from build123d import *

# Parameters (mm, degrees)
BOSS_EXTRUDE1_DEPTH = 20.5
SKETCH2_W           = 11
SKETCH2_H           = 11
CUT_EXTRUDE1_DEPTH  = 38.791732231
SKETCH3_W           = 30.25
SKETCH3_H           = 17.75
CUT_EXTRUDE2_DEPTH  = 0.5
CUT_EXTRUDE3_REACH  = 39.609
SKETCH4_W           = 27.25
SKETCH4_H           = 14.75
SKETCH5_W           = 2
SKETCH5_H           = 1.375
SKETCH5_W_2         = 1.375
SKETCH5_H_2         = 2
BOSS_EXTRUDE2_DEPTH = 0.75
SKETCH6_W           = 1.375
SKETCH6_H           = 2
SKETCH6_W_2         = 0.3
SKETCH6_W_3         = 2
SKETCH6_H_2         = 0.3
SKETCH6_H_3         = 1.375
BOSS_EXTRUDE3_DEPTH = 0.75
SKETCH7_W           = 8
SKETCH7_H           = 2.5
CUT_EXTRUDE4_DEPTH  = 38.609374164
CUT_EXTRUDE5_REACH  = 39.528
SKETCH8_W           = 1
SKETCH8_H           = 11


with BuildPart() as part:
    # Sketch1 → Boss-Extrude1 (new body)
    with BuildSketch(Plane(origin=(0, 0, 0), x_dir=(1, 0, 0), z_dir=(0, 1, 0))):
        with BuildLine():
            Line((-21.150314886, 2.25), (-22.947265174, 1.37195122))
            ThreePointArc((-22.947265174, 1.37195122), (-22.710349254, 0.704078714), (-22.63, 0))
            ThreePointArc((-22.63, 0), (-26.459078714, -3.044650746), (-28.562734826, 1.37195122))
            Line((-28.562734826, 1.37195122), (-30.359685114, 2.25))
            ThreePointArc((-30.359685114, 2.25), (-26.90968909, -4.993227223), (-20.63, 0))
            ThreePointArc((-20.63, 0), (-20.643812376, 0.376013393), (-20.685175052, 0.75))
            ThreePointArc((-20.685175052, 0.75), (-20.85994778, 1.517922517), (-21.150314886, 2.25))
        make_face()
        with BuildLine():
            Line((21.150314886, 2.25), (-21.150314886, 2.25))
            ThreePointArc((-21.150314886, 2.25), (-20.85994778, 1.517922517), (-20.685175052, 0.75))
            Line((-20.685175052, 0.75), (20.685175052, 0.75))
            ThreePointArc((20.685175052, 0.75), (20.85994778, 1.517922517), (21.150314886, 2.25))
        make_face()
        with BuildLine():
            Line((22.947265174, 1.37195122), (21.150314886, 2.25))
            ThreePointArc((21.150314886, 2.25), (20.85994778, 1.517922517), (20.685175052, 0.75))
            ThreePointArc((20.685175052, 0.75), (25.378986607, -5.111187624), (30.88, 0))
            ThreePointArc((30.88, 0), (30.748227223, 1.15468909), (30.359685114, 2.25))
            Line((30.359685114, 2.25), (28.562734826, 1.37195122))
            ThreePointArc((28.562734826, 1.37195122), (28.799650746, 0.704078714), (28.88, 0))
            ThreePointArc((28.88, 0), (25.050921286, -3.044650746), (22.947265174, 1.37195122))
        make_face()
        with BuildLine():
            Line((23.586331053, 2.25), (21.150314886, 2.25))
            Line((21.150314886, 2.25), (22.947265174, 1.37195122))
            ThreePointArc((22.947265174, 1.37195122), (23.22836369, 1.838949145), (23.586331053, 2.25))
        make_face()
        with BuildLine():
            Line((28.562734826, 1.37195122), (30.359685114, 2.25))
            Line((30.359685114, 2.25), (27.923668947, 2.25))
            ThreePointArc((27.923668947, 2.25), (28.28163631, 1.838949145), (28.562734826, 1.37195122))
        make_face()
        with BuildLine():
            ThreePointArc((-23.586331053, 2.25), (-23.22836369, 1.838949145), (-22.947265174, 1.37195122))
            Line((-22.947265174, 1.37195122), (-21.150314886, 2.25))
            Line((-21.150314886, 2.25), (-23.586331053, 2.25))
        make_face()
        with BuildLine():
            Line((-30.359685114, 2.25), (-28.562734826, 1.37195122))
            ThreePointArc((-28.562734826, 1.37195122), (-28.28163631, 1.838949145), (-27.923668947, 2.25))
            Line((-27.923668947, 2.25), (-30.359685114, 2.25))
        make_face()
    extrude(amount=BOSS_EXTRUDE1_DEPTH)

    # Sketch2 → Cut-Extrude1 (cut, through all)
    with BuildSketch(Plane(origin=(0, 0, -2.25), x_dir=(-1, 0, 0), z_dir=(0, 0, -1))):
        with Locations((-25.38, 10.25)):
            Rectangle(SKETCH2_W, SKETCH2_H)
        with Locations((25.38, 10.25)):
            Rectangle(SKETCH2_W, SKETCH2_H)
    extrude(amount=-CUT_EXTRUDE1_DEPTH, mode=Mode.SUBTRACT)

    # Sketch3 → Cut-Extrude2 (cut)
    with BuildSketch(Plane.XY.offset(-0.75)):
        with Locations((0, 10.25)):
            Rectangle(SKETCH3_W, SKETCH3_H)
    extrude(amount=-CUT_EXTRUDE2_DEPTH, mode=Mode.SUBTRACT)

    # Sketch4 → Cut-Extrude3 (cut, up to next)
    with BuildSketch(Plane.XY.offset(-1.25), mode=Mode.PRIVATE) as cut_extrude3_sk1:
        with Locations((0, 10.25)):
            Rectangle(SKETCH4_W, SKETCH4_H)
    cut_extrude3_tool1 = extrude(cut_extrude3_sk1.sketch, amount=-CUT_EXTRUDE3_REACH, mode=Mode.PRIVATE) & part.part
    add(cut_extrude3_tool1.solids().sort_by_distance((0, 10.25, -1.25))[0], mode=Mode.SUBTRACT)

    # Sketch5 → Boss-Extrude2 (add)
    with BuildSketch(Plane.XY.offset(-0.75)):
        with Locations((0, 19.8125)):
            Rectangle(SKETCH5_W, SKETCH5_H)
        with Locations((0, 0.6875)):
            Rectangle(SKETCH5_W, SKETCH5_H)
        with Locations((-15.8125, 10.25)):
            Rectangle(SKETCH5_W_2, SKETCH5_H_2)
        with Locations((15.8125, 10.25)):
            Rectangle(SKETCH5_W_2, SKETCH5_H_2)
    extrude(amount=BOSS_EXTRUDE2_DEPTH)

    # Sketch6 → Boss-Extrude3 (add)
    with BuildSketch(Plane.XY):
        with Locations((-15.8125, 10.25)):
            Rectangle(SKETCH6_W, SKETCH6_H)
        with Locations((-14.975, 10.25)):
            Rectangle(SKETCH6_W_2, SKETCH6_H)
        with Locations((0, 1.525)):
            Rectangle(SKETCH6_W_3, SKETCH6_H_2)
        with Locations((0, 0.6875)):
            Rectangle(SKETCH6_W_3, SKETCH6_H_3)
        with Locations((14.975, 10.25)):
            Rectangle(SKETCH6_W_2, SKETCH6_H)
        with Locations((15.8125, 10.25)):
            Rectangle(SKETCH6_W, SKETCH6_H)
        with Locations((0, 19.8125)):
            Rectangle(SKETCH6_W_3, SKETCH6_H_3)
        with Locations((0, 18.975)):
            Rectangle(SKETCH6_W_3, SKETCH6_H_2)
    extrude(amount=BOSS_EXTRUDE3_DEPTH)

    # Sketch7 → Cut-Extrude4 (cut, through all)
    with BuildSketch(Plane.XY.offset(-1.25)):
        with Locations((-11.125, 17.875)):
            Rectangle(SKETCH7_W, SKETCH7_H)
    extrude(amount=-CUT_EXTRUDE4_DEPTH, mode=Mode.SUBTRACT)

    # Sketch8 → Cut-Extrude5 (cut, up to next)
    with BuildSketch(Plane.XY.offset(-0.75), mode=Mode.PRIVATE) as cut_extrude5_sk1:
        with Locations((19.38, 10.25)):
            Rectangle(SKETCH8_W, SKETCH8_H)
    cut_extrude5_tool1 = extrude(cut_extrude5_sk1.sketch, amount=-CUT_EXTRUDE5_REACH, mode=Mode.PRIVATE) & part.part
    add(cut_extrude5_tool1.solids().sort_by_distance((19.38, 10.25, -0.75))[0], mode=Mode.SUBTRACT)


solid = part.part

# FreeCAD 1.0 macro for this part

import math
import FreeCAD as App
import Part
import Sketcher

V = App.Vector
Q = App.Units.Quantity

doc = App.newDocument("Part")
body = doc.addObject("PartDesign::Body", "Body")

sketch1 = doc.addObject("Sketcher::SketchObject", "Sketch")
body.addObject(sketch1)
sketch1.AttachmentSupport = (doc.XZ_Plane, [""])
sketch1.MapMode = "FlatFace"
sketch1.addGeometry(Part.ArcOfCircle(Part.Circle(V(-25.8, 0, 0), V(0, 0, 1), 3.1), math.radians(-26), math.radians(0)), False)
sketch1.addGeometry(Part.ArcOfCircle(Part.Circle(V(-25.8, 0, 0), V(0, 0, 1), 3.1), math.radians(0), math.radians(206)), False)
sketch1.addGeometry(Part.ArcOfCircle(Part.Circle(V(-25.8, 0, 0), V(0, 0, 1), 3.1), math.radians(-154), math.radians(-134)), False)
sketch1.addGeometry(Part.LineSegment(V(-27.9, -2.2, 0), V(-30.4, -2.2, 0)), False)
sketch1.addGeometry(Part.ArcOfCircle(Part.Circle(V(-25.8, 0, 0), V(0, 0, 1), 5.1), math.radians(0), math.radians(206)), False)
sketch1.addGeometry(Part.ArcOfCircle(Part.Circle(V(-25.8, 0, 0), V(0, 0, 1), 5.1), math.radians(-8.41), math.radians(0)), False)
sketch1.addGeometry(Part.LineSegment(V(-20.7, -0.8, 0), V(20.7, -0.8, 0)), False)
sketch1.addGeometry(Part.ArcOfCircle(Part.Circle(V(25.8, 0, 0), V(0, 0, 1), 5.1), math.radians(0), math.radians(188)), False)
sketch1.addGeometry(Part.ArcOfCircle(Part.Circle(V(25.8, 0, 0), V(0, 0, 1), 5.1), math.radians(-26), math.radians(0)), False)
sketch1.addGeometry(Part.LineSegment(V(30.4, -2.2, 0), V(27.9, -2.2, 0)), False)
sketch1.addGeometry(Part.ArcOfCircle(Part.Circle(V(25.8, 0, 0), V(0, 0, 1), 3.1), math.radians(-46), math.radians(-26)), False)
sketch1.addGeometry(Part.ArcOfCircle(Part.Circle(V(25.8, 0, 0), V(0, 0, 1), 3.1), math.radians(-26), math.radians(0)), False)
sketch1.addGeometry(Part.ArcOfCircle(Part.Circle(V(25.8, 0, 0), V(0, 0, 1), 3.1), math.radians(0), math.radians(206)), False)
sketch1.addGeometry(Part.ArcOfCircle(Part.Circle(V(25.8, 0, 0), V(0, 0, 1), 3.1), math.radians(-154), math.radians(-134)), False)
sketch1.addGeometry(Part.LineSegment(V(23.6, -2.2, 0), V(-23.6, -2.2, 0)), False)
sketch1.addGeometry(Part.ArcOfCircle(Part.Circle(V(-25.8, 0, 0), V(0, 0, 1), 3.1), math.radians(-46), math.radians(-26)), False)
sketch1.addConstraint(Sketcher.Constraint("Tangent", 0, 2, 1, 1))
sketch1.addConstraint(Sketcher.Constraint("Tangent", 1, 2, 2, 1))
sketch1.addConstraint(Sketcher.Constraint("Coincident", 2, 2, 3, 1))
sketch1.addConstraint(Sketcher.Constraint("Coincident", 3, 2, 4, 2))
sketch1.addConstraint(Sketcher.Constraint("Tangent", 4, 1, 5, 2))
sketch1.addConstraint(Sketcher.Constraint("Coincident", 5, 1, 6, 1))
sketch1.addConstraint(Sketcher.Constraint("Coincident", 6, 2, 7, 2))
sketch1.addConstraint(Sketcher.Constraint("Tangent", 7, 1, 8, 2))
sketch1.addConstraint(Sketcher.Constraint("Coincident", 8, 1, 9, 1))
sketch1.addConstraint(Sketcher.Constraint("Coincident", 9, 2, 10, 1))
sketch1.addConstraint(Sketcher.Constraint("Tangent", 10, 2, 11, 1))
sketch1.addConstraint(Sketcher.Constraint("Tangent", 11, 2, 12, 1))
sketch1.addConstraint(Sketcher.Constraint("Tangent", 12, 2, 13, 1))
sketch1.addConstraint(Sketcher.Constraint("Coincident", 13, 2, 14, 1))
sketch1.addConstraint(Sketcher.Constraint("Coincident", 14, 2, 15, 1))
sketch1.addConstraint(Sketcher.Constraint("Tangent", 15, 2, 0, 1))
sketch1.addConstraint(Sketcher.Constraint("Horizontal", 3))
sketch1.addConstraint(Sketcher.Constraint("Horizontal", 6))
sketch1.addConstraint(Sketcher.Constraint("Horizontal", 9))
sketch1.addConstraint(Sketcher.Constraint("Horizontal", 14))
sketch1.addConstraint(Sketcher.Constraint("Coincident", 2, 3, 0, 3))
sketch1.addConstraint(Sketcher.Constraint("Coincident", 4, 3, 0, 3))
sketch1.addConstraint(Sketcher.Constraint("Coincident", 10, 3, 7, 3))
sketch1.addConstraint(Sketcher.Constraint("Coincident", 12, 3, 7, 3))
sketch1.addConstraint(Sketcher.Constraint("Equal", 4, 5))
sketch1.addConstraint(Sketcher.Constraint("Equal", 5, 7))
sketch1.addConstraint(Sketcher.Constraint("Equal", 7, 8))
sketch1.addConstraint(Sketcher.Constraint("Equal", 2, 10))
sketch1.addConstraint(Sketcher.Constraint("Equal", 12, 13))
sketch1.addConstraint(Sketcher.Constraint("Equal", 13, 15))
sketch1.addConstraint(Sketcher.Constraint("Symmetric", 0, 3, 7, 3, -1, 1))
sketch1.addConstraint(Sketcher.Constraint("Symmetric", 3, 2, 8, 1, -2))
sketch1.addConstraint(Sketcher.Constraint("PointOnObject", 0, 2, -1))
sketch1.addConstraint(Sketcher.Constraint("PointOnObject", 4, 1, -1))
sketch1.addConstraint(Sketcher.Constraint("PointOnObject", 7, 1, -1))
sketch1.addConstraint(Sketcher.Constraint("PointOnObject", 11, 2, -1))
sketch1.addConstraint(Sketcher.Constraint("Horizontal", 1, 2, 10, 2))
sketch1.addConstraint(Sketcher.Constraint("Horizontal", 10, 2, 12, 2))
sketch1.addConstraint(Sketcher.Constraint("Horizontal", 9, 2, 13, 2))
sketch1.addConstraint(Sketcher.Constraint("Horizontal", 12, 2, 15, 2))
sketch1.addConstraint(Sketcher.Constraint("Radius", 0, Q("3.125 mm")))
sketch1.addConstraint(Sketcher.Constraint("Radius", 4, Q("5.125 mm")))
sketch1.addConstraint(Sketcher.Constraint("DistanceX", 0, 2, -1, 1, Q("22.63 mm")))
sketch1.addConstraint(Sketcher.Constraint("DistanceY", 2, 2, -1, 1, Q("2.25 mm")))
sketch1.addConstraint(Sketcher.Constraint("DistanceY", 5, 1, -1, 1, Q("0.75 mm")))
sketch1.addConstraint(Sketcher.Constraint("DistanceY", 1, 2, -1, 1, Q("1.371951 mm")))
pad1 = doc.addObject("PartDesign::Pad", "Pad")
body.addObject(pad1)
pad1.Profile = sketch1
pad1.Length = 20.5
pad1.Reversed = True

sketch2 = doc.addObject("Sketcher::SketchObject", "Sketch001")
body.addObject(sketch2)
sketch2.AttachmentSupport = (doc.XY_Plane, [""])
sketch2.MapMode = "FlatFace"
sketch2.AttachmentOffset = App.Placement(V(0, 0, -2.25), App.Rotation())
sketch2.addGeometry(Part.LineSegment(V(31, 16, 0), V(31, 5, 0)), False)
sketch2.addGeometry(Part.LineSegment(V(31, 5, 0), V(20, 5, 0)), False)
sketch2.addGeometry(Part.LineSegment(V(20, 5, 0), V(20, 16, 0)), False)
sketch2.addGeometry(Part.LineSegment(V(20, 16, 0), V(31, 16, 0)), False)
sketch2.addGeometry(Part.LineSegment(V(-20, 16, 0), V(-20, 5, 0)), False)
sketch2.addGeometry(Part.LineSegment(V(-20, 5, 0), V(-31, 5, 0)), False)
sketch2.addGeometry(Part.LineSegment(V(-31, 5, 0), V(-31, 16, 0)), False)
sketch2.addGeometry(Part.LineSegment(V(-31, 16, 0), V(-20, 16, 0)), False)
sketch2.addConstraint(Sketcher.Constraint("Coincident", 0, 2, 1, 1))
sketch2.addConstraint(Sketcher.Constraint("Coincident", 1, 2, 2, 1))
sketch2.addConstraint(Sketcher.Constraint("Coincident", 2, 2, 3, 1))
sketch2.addConstraint(Sketcher.Constraint("Coincident", 3, 2, 0, 1))
sketch2.addConstraint(Sketcher.Constraint("Coincident", 4, 2, 5, 1))
sketch2.addConstraint(Sketcher.Constraint("Coincident", 5, 2, 6, 1))
sketch2.addConstraint(Sketcher.Constraint("Coincident", 6, 2, 7, 1))
sketch2.addConstraint(Sketcher.Constraint("Coincident", 7, 2, 4, 1))
sketch2.addConstraint(Sketcher.Constraint("Vertical", 0))
sketch2.addConstraint(Sketcher.Constraint("Horizontal", 1))
sketch2.addConstraint(Sketcher.Constraint("Vertical", 2))
sketch2.addConstraint(Sketcher.Constraint("Horizontal", 3))
sketch2.addConstraint(Sketcher.Constraint("Vertical", 4))
sketch2.addConstraint(Sketcher.Constraint("Horizontal", 5))
sketch2.addConstraint(Sketcher.Constraint("Vertical", 6))
sketch2.addConstraint(Sketcher.Constraint("Horizontal", 7))
sketch2.addConstraint(Sketcher.Constraint("Symmetric", 1, 2, 4, 2, -2))
sketch2.addConstraint(Sketcher.Constraint("Symmetric", 3, 2, 6, 2, -2))
sketch2.addConstraint(Sketcher.Constraint("Equal", 7, 0))
sketch2.addConstraint(Sketcher.Constraint("DistanceX", 1, 2, 1, 1, Q("11 mm")))
sketch2.addConstraint(Sketcher.Constraint("DistanceX", -1, 1, 0, 2, Q("30.88 mm")))
sketch2.addConstraint(Sketcher.Constraint("DistanceY", -1, 1, 0, 2, Q("4.75 mm")))
pocket1 = doc.addObject("PartDesign::Pocket", "Pocket")
body.addObject(pocket1)
pocket1.Profile = sketch2
pocket1.Type = "ThroughAll"
pocket1.Reversed = True

sketch3 = doc.addObject("Sketcher::SketchObject", "Sketch002")
body.addObject(sketch3)
sketch3.AttachmentSupport = (doc.XY_Plane, [""])
sketch3.MapMode = "FlatFace"
sketch3.AttachmentOffset = App.Placement(V(0, 0, -0.75), App.Rotation())
sketch3.addGeometry(Part.LineSegment(V(-15, 19, 0), V(-15, 1, 0)), False)
sketch3.addGeometry(Part.LineSegment(V(-15, 1, 0), V(15, 1, 0)), False)
sketch3.addGeometry(Part.LineSegment(V(15, 1, 0), V(15, 19, 0)), False)
sketch3.addGeometry(Part.LineSegment(V(15, 19, 0), V(-15, 19, 0)), False)
sketch3.addConstraint(Sketcher.Constraint("Coincident", 0, 2, 1, 1))
sketch3.addConstraint(Sketcher.Constraint("Coincident", 1, 2, 2, 1))
sketch3.addConstraint(Sketcher.Constraint("Coincident", 2, 2, 3, 1))
sketch3.addConstraint(Sketcher.Constraint("Coincident", 3, 2, 0, 1))
sketch3.addConstraint(Sketcher.Constraint("Vertical", 0))
sketch3.addConstraint(Sketcher.Constraint("Horizontal", 1))
sketch3.addConstraint(Sketcher.Constraint("Vertical", 2))
sketch3.addConstraint(Sketcher.Constraint("Horizontal", 3))
sketch3.addConstraint(Sketcher.Constraint("DistanceX", 1, 1, 1, 2, Q("30.25 mm")))
sketch3.addConstraint(Sketcher.Constraint("DistanceY", 0, 2, 0, 1, Q("17.75 mm")))
sketch3.addConstraint(Sketcher.Constraint("DistanceX", 0, 2, -1, 1, Q("15.125 mm")))
sketch3.addConstraint(Sketcher.Constraint("DistanceY", -1, 1, 0, 2, Q("1.375 mm")))
pocket2 = doc.addObject("PartDesign::Pocket", "Pocket001")
body.addObject(pocket2)
pocket2.Profile = sketch3
pocket2.Length = 0.5

sketch4 = doc.addObject("Sketcher::SketchObject", "Sketch003")
body.addObject(sketch4)
sketch4.AttachmentSupport = (doc.XY_Plane, [""])
sketch4.MapMode = "FlatFace"
sketch4.AttachmentOffset = App.Placement(V(0, 0, -1.25), App.Rotation())
sketch4.addGeometry(Part.LineSegment(V(-14, 18, 0), V(-14, 3, 0)), False)
sketch4.addGeometry(Part.LineSegment(V(-14, 3, 0), V(14, 3, 0)), False)
sketch4.addGeometry(Part.LineSegment(V(14, 3, 0), V(14, 18, 0)), False)
sketch4.addGeometry(Part.LineSegment(V(14, 18, 0), V(-14, 18, 0)), False)
sketch4.addConstraint(Sketcher.Constraint("Coincident", 0, 2, 1, 1))
sketch4.addConstraint(Sketcher.Constraint("Coincident", 1, 2, 2, 1))
sketch4.addConstraint(Sketcher.Constraint("Coincident", 2, 2, 3, 1))
sketch4.addConstraint(Sketcher.Constraint("Coincident", 3, 2, 0, 1))
sketch4.addConstraint(Sketcher.Constraint("Vertical", 0))
sketch4.addConstraint(Sketcher.Constraint("Horizontal", 1))
sketch4.addConstraint(Sketcher.Constraint("Vertical", 2))
sketch4.addConstraint(Sketcher.Constraint("Horizontal", 3))
sketch4.addConstraint(Sketcher.Constraint("DistanceX", 1, 1, 1, 2, Q("27.25 mm")))
sketch4.addConstraint(Sketcher.Constraint("DistanceY", 0, 2, 0, 1, Q("14.75 mm")))
sketch4.addConstraint(Sketcher.Constraint("DistanceX", 0, 2, -1, 1, Q("13.625 mm")))
sketch4.addConstraint(Sketcher.Constraint("DistanceY", -1, 1, 0, 2, Q("2.875 mm")))
pocket3 = doc.addObject("PartDesign::Pocket", "Pocket002")
body.addObject(pocket3)
pocket3.Profile = sketch4
pocket3.Type = "UpToFirst"

sketch5 = doc.addObject("Sketcher::SketchObject", "Sketch004")
body.addObject(sketch5)
sketch5.AttachmentSupport = (doc.XY_Plane, [""])
sketch5.MapMode = "FlatFace"
sketch5.AttachmentOffset = App.Placement(V(0, 0, -0.75), App.Rotation())
sketch5.addGeometry(Part.LineSegment(V(-1, 20.5, 0), V(-1, 19.1, 0)), False)
sketch5.addGeometry(Part.LineSegment(V(-1, 19.1, 0), V(1, 19.1, 0)), False)
sketch5.addGeometry(Part.LineSegment(V(1, 19.1, 0), V(1, 20.5, 0)), False)
sketch5.addGeometry(Part.LineSegment(V(1, 20.5, 0), V(-1, 20.5, 0)), False)
sketch5.addGeometry(Part.LineSegment(V(-1, 1.4, 0), V(-1, 0, 0)), False)
sketch5.addGeometry(Part.LineSegment(V(-1, 0, 0), V(1, 0, 0)), False)
sketch5.addGeometry(Part.LineSegment(V(1, 0, 0), V(1, 1.4, 0)), False)
sketch5.addGeometry(Part.LineSegment(V(1, 1.4, 0), V(-1, 1.4, 0)), False)
sketch5.addGeometry(Part.LineSegment(V(-16.5, 11.2, 0), V(-16.5, 9.2, 0)), False)
sketch5.addGeometry(Part.LineSegment(V(-16.5, 9.2, 0), V(-15.1, 9.2, 0)), False)
sketch5.addGeometry(Part.LineSegment(V(-15.1, 9.2, 0), V(-15.1, 11.2, 0)), False)
sketch5.addGeometry(Part.LineSegment(V(-15.1, 11.2, 0), V(-16.5, 11.2, 0)), False)
sketch5.addGeometry(Part.LineSegment(V(15.1, 11.2, 0), V(15.1, 9.2, 0)), False)
sketch5.addGeometry(Part.LineSegment(V(15.1, 9.2, 0), V(16.5, 9.2, 0)), False)
sketch5.addGeometry(Part.LineSegment(V(16.5, 9.2, 0), V(16.5, 11.2, 0)), False)
sketch5.addGeometry(Part.LineSegment(V(16.5, 11.2, 0), V(15.1, 11.2, 0)), False)
sketch5.addConstraint(Sketcher.Constraint("Coincident", 0, 2, 1, 1))
sketch5.addConstraint(Sketcher.Constraint("Coincident", 1, 2, 2, 1))
sketch5.addConstraint(Sketcher.Constraint("Coincident", 2, 2, 3, 1))
sketch5.addConstraint(Sketcher.Constraint("Coincident", 3, 2, 0, 1))
sketch5.addConstraint(Sketcher.Constraint("Coincident", 4, 2, 5, 1))
sketch5.addConstraint(Sketcher.Constraint("Coincident", 5, 2, 6, 1))
sketch5.addConstraint(Sketcher.Constraint("Coincident", 6, 2, 7, 1))
sketch5.addConstraint(Sketcher.Constraint("Coincident", 7, 2, 4, 1))
sketch5.addConstraint(Sketcher.Constraint("Coincident", 8, 2, 9, 1))
sketch5.addConstraint(Sketcher.Constraint("Coincident", 9, 2, 10, 1))
sketch5.addConstraint(Sketcher.Constraint("Coincident", 10, 2, 11, 1))
sketch5.addConstraint(Sketcher.Constraint("Coincident", 11, 2, 8, 1))
sketch5.addConstraint(Sketcher.Constraint("Coincident", 12, 2, 13, 1))
sketch5.addConstraint(Sketcher.Constraint("Coincident", 13, 2, 14, 1))
sketch5.addConstraint(Sketcher.Constraint("Coincident", 14, 2, 15, 1))
sketch5.addConstraint(Sketcher.Constraint("Coincident", 15, 2, 12, 1))
sketch5.addConstraint(Sketcher.Constraint("Vertical", 0))
sketch5.addConstraint(Sketcher.Constraint("Horizontal", 1))
sketch5.addConstraint(Sketcher.Constraint("Vertical", 2))
sketch5.addConstraint(Sketcher.Constraint("Horizontal", 3))
sketch5.addConstraint(Sketcher.Constraint("Vertical", 4))
sketch5.addConstraint(Sketcher.Constraint("Horizontal", 5))
sketch5.addConstraint(Sketcher.Constraint("Vertical", 6))
sketch5.addConstraint(Sketcher.Constraint("Horizontal", 7))
sketch5.addConstraint(Sketcher.Constraint("Vertical", 8))
sketch5.addConstraint(Sketcher.Constraint("Horizontal", 9))
sketch5.addConstraint(Sketcher.Constraint("Vertical", 10))
sketch5.addConstraint(Sketcher.Constraint("Horizontal", 11))
sketch5.addConstraint(Sketcher.Constraint("Vertical", 12))
sketch5.addConstraint(Sketcher.Constraint("Horizontal", 13))
sketch5.addConstraint(Sketcher.Constraint("Vertical", 14))
sketch5.addConstraint(Sketcher.Constraint("Horizontal", 15))
sketch5.addConstraint(Sketcher.Constraint("Symmetric", 4, 2, 5, 2, -1, 1))
sketch5.addConstraint(Sketcher.Constraint("Symmetric", 9, 2, 12, 2, -2))
sketch5.addConstraint(Sketcher.Constraint("Symmetric", 11, 2, 14, 2, -2))
sketch5.addConstraint(Sketcher.Constraint("Vertical", 3, 2, 4, 2))
sketch5.addConstraint(Sketcher.Constraint("Vertical", 2, 2, 5, 2))
sketch5.addConstraint(Sketcher.Constraint("Equal", 15, 0))
sketch5.addConstraint(Sketcher.Constraint("Equal", 2, 4))
sketch5.addConstraint(Sketcher.Constraint("Equal", 7, 8))
sketch5.addConstraint(Sketcher.Constraint("DistanceX", 1, 1, 1, 2, Q("2 mm")))
sketch5.addConstraint(Sketcher.Constraint("DistanceY", -1, 1, 2, 2, Q("20.5 mm")))
sketch5.addConstraint(Sketcher.Constraint("DistanceX", 8, 2, -1, 1, Q("16.5 mm")))
sketch5.addConstraint(Sketcher.Constraint("DistanceX", 9, 1, 9, 2, Q("1.375 mm")))
sketch5.addConstraint(Sketcher.Constraint("DistanceY", -1, 1, 8, 2, Q("9.25 mm")))
pad2 = doc.addObject("PartDesign::Pad", "Pad001")
body.addObject(pad2)
pad2.Profile = sketch5
pad2.Length = 0.75

sketch6 = doc.addObject("Sketcher::SketchObject", "Sketch005")
body.addObject(sketch6)
sketch6.AttachmentSupport = (doc.XY_Plane, [""])
sketch6.MapMode = "FlatFace"
sketch6.addGeometry(Part.LineSegment(V(-16.5, 11.2, 0), V(-16.5, 9.2, 0)), False)
sketch6.addGeometry(Part.LineSegment(V(-16.5, 9.2, 0), V(-14.8, 9.2, 0)), False)
sketch6.addGeometry(Part.LineSegment(V(-14.8, 9.2, 0), V(-14.8, 11.2, 0)), False)
sketch6.addGeometry(Part.LineSegment(V(-14.8, 11.2, 0), V(-16.5, 11.2, 0)), False)
sketch6.addGeometry(Part.LineSegment(V(-1, 1.7, 0), V(-1, 0, 0)), False)
sketch6.addGeometry(Part.LineSegment(V(-1, 0, 0), V(1, 0, 0)), False)
sketch6.addGeometry(Part.LineSegment(V(1, 0, 0), V(1, 1.7, 0)), False)
sketch6.addGeometry(Part.LineSegment(V(1, 1.7, 0), V(-1, 1.7, 0)), False)
sketch6.addGeometry(Part.LineSegment(V(14.8, 11.2, 0), V(14.8, 9.2, 0)), False)
sketch6.addGeometry(Part.LineSegment(V(14.8, 9.2, 0), V(16.5, 9.2, 0)), False)
sketch6.addGeometry(Part.LineSegment(V(16.5, 9.2, 0), V(16.5, 11.2, 0)), False)
sketch6.addGeometry(Part.LineSegment(V(16.5, 11.2, 0), V(14.8, 11.2, 0)), False)
sketch6.addGeometry(Part.LineSegment(V(-1, 20.5, 0), V(-1, 18.8, 0)), False)
sketch6.addGeometry(Part.LineSegment(V(-1, 18.8, 0), V(1, 18.8, 0)), False)
sketch6.addGeometry(Part.LineSegment(V(1, 18.8, 0), V(1, 20.5, 0)), False)
sketch6.addGeometry(Part.LineSegment(V(1, 20.5, 0), V(-1, 20.5, 0)), False)
sketch6.addConstraint(Sketcher.Constraint("Coincident", 0, 2, 1, 1))
sketch6.addConstraint(Sketcher.Constraint("Coincident", 1, 2, 2, 1))
sketch6.addConstraint(Sketcher.Constraint("Coincident", 2, 2, 3, 1))
sketch6.addConstraint(Sketcher.Constraint("Coincident", 3, 2, 0, 1))
sketch6.addConstraint(Sketcher.Constraint("Coincident", 4, 2, 5, 1))
sketch6.addConstraint(Sketcher.Constraint("Coincident", 5, 2, 6, 1))
sketch6.addConstraint(Sketcher.Constraint("Coincident", 6, 2, 7, 1))
sketch6.addConstraint(Sketcher.Constraint("Coincident", 7, 2, 4, 1))
sketch6.addConstraint(Sketcher.Constraint("Coincident", 8, 2, 9, 1))
sketch6.addConstraint(Sketcher.Constraint("Coincident", 9, 2, 10, 1))
sketch6.addConstraint(Sketcher.Constraint("Coincident", 10, 2, 11, 1))
sketch6.addConstraint(Sketcher.Constraint("Coincident", 11, 2, 8, 1))
sketch6.addConstraint(Sketcher.Constraint("Coincident", 12, 2, 13, 1))
sketch6.addConstraint(Sketcher.Constraint("Coincident", 13, 2, 14, 1))
sketch6.addConstraint(Sketcher.Constraint("Coincident", 14, 2, 15, 1))
sketch6.addConstraint(Sketcher.Constraint("Coincident", 15, 2, 12, 1))
sketch6.addConstraint(Sketcher.Constraint("Vertical", 0))
sketch6.addConstraint(Sketcher.Constraint("Horizontal", 1))
sketch6.addConstraint(Sketcher.Constraint("Vertical", 2))
sketch6.addConstraint(Sketcher.Constraint("Horizontal", 3))
sketch6.addConstraint(Sketcher.Constraint("Vertical", 4))
sketch6.addConstraint(Sketcher.Constraint("Horizontal", 5))
sketch6.addConstraint(Sketcher.Constraint("Vertical", 6))
sketch6.addConstraint(Sketcher.Constraint("Horizontal", 7))
sketch6.addConstraint(Sketcher.Constraint("Vertical", 8))
sketch6.addConstraint(Sketcher.Constraint("Horizontal", 9))
sketch6.addConstraint(Sketcher.Constraint("Vertical", 10))
sketch6.addConstraint(Sketcher.Constraint("Horizontal", 11))
sketch6.addConstraint(Sketcher.Constraint("Vertical", 12))
sketch6.addConstraint(Sketcher.Constraint("Horizontal", 13))
sketch6.addConstraint(Sketcher.Constraint("Vertical", 14))
sketch6.addConstraint(Sketcher.Constraint("Horizontal", 15))
sketch6.addConstraint(Sketcher.Constraint("Symmetric", 4, 2, 5, 2, -1, 1))
sketch6.addConstraint(Sketcher.Constraint("Symmetric", 1, 2, 8, 2, -2))
sketch6.addConstraint(Sketcher.Constraint("Symmetric", 3, 2, 10, 2, -2))
sketch6.addConstraint(Sketcher.Constraint("Vertical", 7, 2, 12, 2))
sketch6.addConstraint(Sketcher.Constraint("Vertical", 6, 2, 13, 2))
sketch6.addConstraint(Sketcher.Constraint("Equal", 15, 0))
sketch6.addConstraint(Sketcher.Constraint("Equal", 11, 4))
sketch6.addConstraint(Sketcher.Constraint("Equal", 6, 12))
sketch6.addConstraint(Sketcher.Constraint("DistanceX", 5, 1, 5, 2, Q("2 mm")))
sketch6.addConstraint(Sketcher.Constraint("DistanceX", 0, 2, -1, 1, Q("16.5 mm")))
sketch6.addConstraint(Sketcher.Constraint("DistanceY", -1, 1, 14, 2, Q("20.5 mm")))
sketch6.addConstraint(Sketcher.Constraint("DistanceX", 1, 1, 1, 2, Q("1.675 mm")))
sketch6.addConstraint(Sketcher.Constraint("DistanceY", -1, 1, 0, 2, Q("9.25 mm")))
pad3 = doc.addObject("PartDesign::Pad", "Pad002")
body.addObject(pad3)
pad3.Profile = sketch6
pad3.Length = 0.75

sketch7 = doc.addObject("Sketcher::SketchObject", "Sketch006")
body.addObject(sketch7)
sketch7.AttachmentSupport = (doc.XY_Plane, [""])
sketch7.MapMode = "FlatFace"
sketch7.AttachmentOffset = App.Placement(V(0, 0, -1.25), App.Rotation())
sketch7.addGeometry(Part.LineSegment(V(-15.1, 19.1, 0), V(-15.1, 16.6, 0)), False)
sketch7.addGeometry(Part.LineSegment(V(-15.1, 16.6, 0), V(-7.1, 16.6, 0)), False)
sketch7.addGeometry(Part.LineSegment(V(-7.1, 16.6, 0), V(-7.1, 19.1, 0)), False)
sketch7.addGeometry(Part.LineSegment(V(-7.1, 19.1, 0), V(-15.1, 19.1, 0)), False)
sketch7.addConstraint(Sketcher.Constraint("Coincident", 0, 2, 1, 1))
sketch7.addConstraint(Sketcher.Constraint("Coincident", 1, 2, 2, 1))
sketch7.addConstraint(Sketcher.Constraint("Coincident", 2, 2, 3, 1))
sketch7.addConstraint(Sketcher.Constraint("Coincident", 3, 2, 0, 1))
sketch7.addConstraint(Sketcher.Constraint("Vertical", 0))
sketch7.addConstraint(Sketcher.Constraint("Horizontal", 1))
sketch7.addConstraint(Sketcher.Constraint("Vertical", 2))
sketch7.addConstraint(Sketcher.Constraint("Horizontal", 3))
sketch7.addConstraint(Sketcher.Constraint("DistanceX", 1, 1, 1, 2, Q("8 mm")))
sketch7.addConstraint(Sketcher.Constraint("DistanceY", 0, 2, 0, 1, Q("2.5 mm")))
sketch7.addConstraint(Sketcher.Constraint("DistanceX", 0, 2, -1, 1, Q("15.125 mm")))
sketch7.addConstraint(Sketcher.Constraint("DistanceY", -1, 1, 0, 2, Q("16.625 mm")))
pocket4 = doc.addObject("PartDesign::Pocket", "Pocket003")
body.addObject(pocket4)
pocket4.Profile = sketch7
pocket4.Type = "ThroughAll"

sketch8 = doc.addObject("Sketcher::SketchObject", "Sketch007")
body.addObject(sketch8)
sketch8.AttachmentSupport = (doc.XY_Plane, [""])
sketch8.MapMode = "FlatFace"
sketch8.AttachmentOffset = App.Placement(V(0, 0, -0.75), App.Rotation())
sketch8.addGeometry(Part.LineSegment(V(18.9, 15.8, 0), V(18.9, 4.8, 0)), False)
sketch8.addGeometry(Part.LineSegment(V(18.9, 4.8, 0), V(19.9, 4.8, 0)), False)
sketch8.addGeometry(Part.LineSegment(V(19.9, 4.8, 0), V(19.9, 15.8, 0)), False)
sketch8.addGeometry(Part.LineSegment(V(19.9, 15.8, 0), V(18.9, 15.8, 0)), False)
sketch8.addConstraint(Sketcher.Constraint("Coincident", 0, 2, 1, 1))
sketch8.addConstraint(Sketcher.Constraint("Coincident", 1, 2, 2, 1))
sketch8.addConstraint(Sketcher.Constraint("Coincident", 2, 2, 3, 1))
sketch8.addConstraint(Sketcher.Constraint("Coincident", 3, 2, 0, 1))
sketch8.addConstraint(Sketcher.Constraint("Vertical", 0))
sketch8.addConstraint(Sketcher.Constraint("Horizontal", 1))
sketch8.addConstraint(Sketcher.Constraint("Vertical", 2))
sketch8.addConstraint(Sketcher.Constraint("Horizontal", 3))
sketch8.addConstraint(Sketcher.Constraint("DistanceX", 1, 1, 1, 2, Q("1 mm")))
sketch8.addConstraint(Sketcher.Constraint("DistanceY", 0, 2, 0, 1, Q("11 mm")))
sketch8.addConstraint(Sketcher.Constraint("DistanceX", -1, 1, 0, 2, Q("18.88 mm")))
sketch8.addConstraint(Sketcher.Constraint("DistanceY", -1, 1, 0, 2, Q("4.75 mm")))
pocket5 = doc.addObject("PartDesign::Pocket", "Pocket004")
body.addObject(pocket5)
pocket5.Profile = sketch8
pocket5.Type = "UpToFirst"

doc.recompute()
